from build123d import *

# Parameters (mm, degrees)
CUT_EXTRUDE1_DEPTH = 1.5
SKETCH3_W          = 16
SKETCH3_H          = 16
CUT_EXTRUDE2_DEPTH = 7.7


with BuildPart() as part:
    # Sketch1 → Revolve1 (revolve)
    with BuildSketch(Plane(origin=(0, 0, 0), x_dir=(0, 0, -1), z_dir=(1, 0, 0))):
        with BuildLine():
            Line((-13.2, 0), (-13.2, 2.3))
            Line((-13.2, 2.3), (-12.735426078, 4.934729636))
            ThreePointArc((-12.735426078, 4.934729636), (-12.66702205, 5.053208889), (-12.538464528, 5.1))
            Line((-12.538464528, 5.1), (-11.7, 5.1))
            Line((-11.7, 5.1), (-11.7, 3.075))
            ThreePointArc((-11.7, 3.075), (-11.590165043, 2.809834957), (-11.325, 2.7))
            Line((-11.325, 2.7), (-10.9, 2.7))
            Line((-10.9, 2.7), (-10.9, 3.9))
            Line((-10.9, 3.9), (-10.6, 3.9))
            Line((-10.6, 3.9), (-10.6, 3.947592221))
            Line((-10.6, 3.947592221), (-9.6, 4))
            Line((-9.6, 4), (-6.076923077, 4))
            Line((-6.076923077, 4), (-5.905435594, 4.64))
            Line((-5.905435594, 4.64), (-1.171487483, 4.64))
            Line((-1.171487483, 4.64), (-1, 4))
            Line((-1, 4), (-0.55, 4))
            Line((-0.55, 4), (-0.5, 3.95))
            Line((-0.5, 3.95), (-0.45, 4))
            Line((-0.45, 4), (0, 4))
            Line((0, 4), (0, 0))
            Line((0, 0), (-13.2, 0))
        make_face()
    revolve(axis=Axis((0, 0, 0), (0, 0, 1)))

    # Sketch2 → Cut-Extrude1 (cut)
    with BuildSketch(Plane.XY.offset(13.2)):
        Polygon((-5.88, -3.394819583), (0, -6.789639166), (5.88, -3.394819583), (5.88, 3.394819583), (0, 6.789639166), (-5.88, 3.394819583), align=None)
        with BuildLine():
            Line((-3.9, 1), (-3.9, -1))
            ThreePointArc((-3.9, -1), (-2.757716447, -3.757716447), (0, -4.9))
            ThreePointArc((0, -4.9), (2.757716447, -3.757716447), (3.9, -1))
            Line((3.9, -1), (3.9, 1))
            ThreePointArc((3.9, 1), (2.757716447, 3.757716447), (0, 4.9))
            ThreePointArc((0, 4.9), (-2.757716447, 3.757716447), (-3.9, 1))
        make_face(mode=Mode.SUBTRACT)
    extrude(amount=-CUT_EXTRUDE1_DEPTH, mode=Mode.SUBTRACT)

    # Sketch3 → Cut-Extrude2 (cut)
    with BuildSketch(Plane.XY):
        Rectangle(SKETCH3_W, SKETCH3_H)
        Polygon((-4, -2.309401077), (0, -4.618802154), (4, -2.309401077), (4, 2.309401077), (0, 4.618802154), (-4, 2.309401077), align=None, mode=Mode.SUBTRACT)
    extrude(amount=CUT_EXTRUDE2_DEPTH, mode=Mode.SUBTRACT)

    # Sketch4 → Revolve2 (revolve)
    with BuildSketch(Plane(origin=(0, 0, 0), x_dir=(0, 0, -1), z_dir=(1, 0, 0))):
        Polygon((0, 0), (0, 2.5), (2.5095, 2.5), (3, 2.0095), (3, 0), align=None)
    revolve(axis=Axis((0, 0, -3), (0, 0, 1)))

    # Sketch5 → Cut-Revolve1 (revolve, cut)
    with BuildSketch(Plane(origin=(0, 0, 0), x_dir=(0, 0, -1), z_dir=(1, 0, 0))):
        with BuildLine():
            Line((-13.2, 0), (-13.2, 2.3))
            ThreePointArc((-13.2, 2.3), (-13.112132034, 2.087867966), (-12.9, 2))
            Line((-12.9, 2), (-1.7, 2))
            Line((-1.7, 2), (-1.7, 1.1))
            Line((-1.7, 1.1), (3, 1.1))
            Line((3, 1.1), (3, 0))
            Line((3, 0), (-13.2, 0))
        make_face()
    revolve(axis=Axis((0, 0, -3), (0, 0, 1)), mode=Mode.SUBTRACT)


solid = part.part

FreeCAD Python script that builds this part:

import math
import FreeCAD as App
import Part
import Sketcher
Q = App.Units.Quantity


def add_polygon(sketch, points):
    """Adds a closed chain of lines whose ends are joined by coincident constraints."""
    first, n = sketch.GeometryCount, len(points)
    for a, b in zip(points, points[1:] + points[:1]):
        sketch.addGeometry(Part.LineSegment(App.Vector(*a, 0), App.Vector(*b, 0)), False)
    for i in range(n):
        sketch.addConstraint(Sketcher.Constraint("Coincident", first + i, 2, first + (i + 1) % n, 1))

doc = App.newDocument("Part")
body = doc.addObject("PartDesign::Body", "Body")

# Sketch on YZ plane
sketch1 = body.newObject("Sketcher::SketchObject", "Sketch")
sketch1.AttachmentSupport = (doc.getObject("YZ_Plane"), [""])
sketch1.MapMode = "FlatFace"
sketch1.addGeometry(Part.LineSegment(App.Vector(2.3, 13.2, 0), App.Vector(0, 13.2, 0)), False)
sketch1.addGeometry(Part.LineSegment(App.Vector(0, 13.2, 0), App.Vector(0, 0, 0)), False)
sketch1.addGeometry(Part.LineSegment(App.Vector(0, 0, 0), App.Vector(4, 0, 0)), False)
sketch1.addGeometry(Part.LineSegment(App.Vector(4, 0, 0), App.Vector(4, 0.45, 0)), False)
sketch1.addGeometry(Part.LineSegment(App.Vector(4, 0.45, 0), App.Vector(3.95, 0.5, 0)), False)
sketch1.addGeometry(Part.LineSegment(App.Vector(3.95, 0.5, 0), App.Vector(4, 0.55, 0)), False)
sketch1.addGeometry(Part.LineSegment(App.Vector(4, 0.55, 0), App.Vector(4, 1, 0)), False)
sketch1.addGeometry(Part.LineSegment(App.Vector(4, 1, 0), App.Vector(4.64, 1.171, 0)), False)
sketch1.addGeometry(Part.LineSegment(App.Vector(4.64, 1.171, 0), App.Vector(4.64, 5.905, 0)), False)
sketch1.addGeometry(Part.LineSegment(App.Vector(4.64, 5.905, 0), App.Vector(4, 6.077, 0)), False)
sketch1.addGeometry(Part.LineSegment(App.Vector(4, 6.077, 0), App.Vector(4, 9.6, 0)), False)
sketch1.addGeometry(Part.LineSegment(App.Vector(4, 9.6, 0), App.Vector(3.948, 10.6, 0)), False)
sketch1.addGeometry(Part.LineSegment(App.Vector(3.948, 10.6, 0), App.Vector(3.9, 10.6, 0)), False)
sketch1.addGeometry(Part.LineSegment(App.Vector(3.9, 10.6, 0), App.Vector(3.9, 10.9, 0)), False)
sketch1.addGeometry(Part.LineSegment(App.Vector(3.9, 10.9, 0), App.Vector(2.7, 10.9, 0)), False)
sketch1.addGeometry(Part.LineSegment(App.Vector(2.7, 10.9, 0), App.Vector(2.7, 11.325, 0)), False)
sketch1.addGeometry(Part.ArcOfCircle(Part.Circle(App.Vector(3.075, 11.325, 0), App.Vector(0, 0, 1), 0.375), math.radians(90), math.radians(180)), False)
sketch1.addGeometry(Part.LineSegment(App.Vector(3.075, 11.7, 0), App.Vector(5.1, 11.7, 0)), False)
sketch1.addGeometry(Part.LineSegment(App.Vector(5.1, 11.7, 0), App.Vector(5.1, 12.538, 0)), False)
sketch1.addGeometry(Part.ArcOfCircle(Part.Circle(App.Vector(4.9, 12.538, 0), App.Vector(0, 0, 1), 0.2), math.radians(0), math.radians(80)), False)
sketch1.addGeometry(Part.LineSegment(App.Vector(4.935, 12.735, 0), App.Vector(2.3, 13.2, 0)), False)
sketch1.addConstraint(Sketcher.Constraint("Coincident", 0, 2, 1, 1))
sketch1.addConstraint(Sketcher.Constraint("Coincident", 1, 2, 2, 1))
sketch1.addConstraint(Sketcher.Constraint("Coincident", 2, 2, 3, 1))
sketch1.addConstraint(Sketcher.Constraint("Coincident", 3, 2, 4, 1))
sketch1.addConstraint(Sketcher.Constraint("Coincident", 4, 2, 5, 1))
sketch1.addConstraint(Sketcher.Constraint("Coincident", 5, 2, 6, 1))
sketch1.addConstraint(Sketcher.Constraint("Coincident", 6, 2, 7, 1))
sketch1.addConstraint(Sketcher.Constraint("Coincident", 7, 2, 8, 1))
sketch1.addConstraint(Sketcher.Constraint("Coincident", 8, 2, 9, 1))
sketch1.addConstraint(Sketcher.Constraint("Coincident", 9, 2, 10, 1))
sketch1.addConstraint(Sketcher.Constraint("Coincident", 10, 2, 11, 1))
sketch1.addConstraint(Sketcher.Constraint("Coincident", 11, 2, 12, 1))
sketch1.addConstraint(Sketcher.Constraint("Coincident", 12, 2, 13, 1))
sketch1.addConstraint(Sketcher.Constraint("Coincident", 13, 2, 14, 1))
sketch1.addConstraint(Sketcher.Constraint("Coincident", 14, 2, 15, 1))
sketch1.addConstraint(Sketcher.Constraint("Tangent", 15, 2, 16, 2))
sketch1.addConstraint(Sketcher.Constraint("Tangent", 16, 1, 17, 1))
sketch1.addConstraint(Sketcher.Constraint("Coincident", 17, 2, 18, 1))
sketch1.addConstraint(Sketcher.Constraint("Tangent", 18, 2, 19, 1))
sketch1.addConstraint(Sketcher.Constraint("Tangent", 19, 2, 20, 1))
sketch1.addConstraint(Sketcher.Constraint("Coincident", 20, 2, 0, 1))
sketch1.addConstraint(Sketcher.Constraint("Horizontal", 0))
sketch1.addConstraint(Sketcher.Constraint("Vertical", 1))
sketch1.addConstraint(Sketcher.Constraint("Horizontal", 2))
sketch1.addConstraint(Sketcher.Constraint("Vertical", 3))
sketch1.addConstraint(Sketcher.Constraint("Vertical", 6))
sketch1.addConstraint(Sketcher.Constraint("Vertical", 8))
sketch1.addConstraint(Sketcher.Constraint("Vertical", 10))
sketch1.addConstraint(Sketcher.Constraint("Horizontal", 12))
sketch1.addConstraint(Sketcher.Constraint("Vertical", 13))
sketch1.addConstraint(Sketcher.Constraint("Horizontal", 14))
sketch1.addConstraint(Sketcher.Constraint("Vertical", 15))
sketch1.addConstraint(Sketcher.Constraint("Horizontal", 17))
sketch1.addConstraint(Sketcher.Constraint("Vertical", 18))
sketch1.addConstraint(Sketcher.Constraint("Coincident", 1, 2, -1, 1))
sketch1.addConstraint(Sketcher.Constraint("Perpendicular", 4, 5))
sketch1.addConstraint(Sketcher.Constraint("Vertical", 3, 2, 5, 2))
sketch1.addConstraint(Sketcher.Constraint("Vertical", 6, 2, 9, 2))
sketch1.addConstraint(Sketcher.Constraint("Equal", 3, 6))
sketch1.addConstraint(Sketcher.Constraint("Equal", 4, 5))
sketch1.addConstraint(Sketcher.Constraint("Equal", 7, 9))
sketch1.addConstraint(Sketcher.Constraint("Radius", 19, Q("0.2 mm")))
sketch1.addConstraint(Sketcher.Constraint("DistanceX", 2, 1, 2, 2, Q("4 mm")))
sketch1.addConstraint(Sketcher.Constraint("Angle", 7, Q("15 deg")))
sketch1.addConstraint(Sketcher.Constraint("Angle", 11, Q("93 deg")))
sketch1.addConstraint(Sketcher.Constraint("Angle", 20, Q("170 deg")))
sketch1.addConstraint(Sketcher.Constraint("DistanceX", 0, 2, 0, 1, Q("2.3 mm")))
sketch1.addConstraint(Sketcher.Constraint("DistanceX", 14, 2, 14, 1, Q("1.2 mm")))
sketch1.addConstraint(Sketcher.Constraint("DistanceY", 1, 2, 1, 1, Q("13.2 mm")))
sketch1.addConstraint(Sketcher.Constraint("DistanceY", 13, 1, 13, 2, Q("0.3 mm")))
sketch1.addConstraint(Sketcher.Constraint("DistanceY", -1, 1, 6, 2, Q("1 mm")))
sketch1.addConstraint(Sketcher.Constraint("Radius", 16, Q("0.375 mm")))
sketch1.addConstraint(Sketcher.Constraint("DistanceY", 10, 2, 11, 2, Q("1 mm")))
sketch1.addConstraint(Sketcher.Constraint("DistanceX", 12, 2, 19, 3, Q("1 mm")))
sketch1.addConstraint(Sketcher.Constraint("DistanceY", 3, 1, 3, 2, Q("0.45 mm")))
sketch1.addConstraint(Sketcher.Constraint("DistanceX", -1, 1, 19, 3, Q("4.9 mm")))
sketch1.addConstraint(Sketcher.Constraint("DistanceY", -1, 1, 10, 2, Q("9.6 mm")))
sketch1.addConstraint(Sketcher.Constraint("DistanceY", -1, 1, 16, 1, Q("11.7 mm")))
sketch1.addConstraint(Sketcher.Constraint("DistanceX", -1, 1, 7, 2, Q("4.64 mm")))
sketch1.addConstraint(Sketcher.Constraint("DistanceY", 8, 1, 8, 2, Q("4.733948 mm")))
revolution = body.newObject("PartDesign::Revolution", "Revolution")
revolution.Profile = sketch1
revolution.ReferenceAxis = (sketch1, ["V_Axis"])
revolution.Angle = 360

# Sketch on XY plane
sketch2 = body.newObject("Sketcher::SketchObject", "Sketch001")
sketch2.AttachmentSupport = (doc.getObject("XY_Plane"), [""])
sketch2.MapMode = "FlatFace"
sketch2.AttachmentOffset = App.Placement(App.Vector(0, 0, 13.2), App.Rotation())
add_polygon(sketch2, [(-5.9, -3.4), (0, -6.8), (5.9, -3.4), (5.9, 3.4), (0, 6.8), (-5.9, 3.4)])  # lines 0-5
sketch2.addGeometry(Part.LineSegment(App.Vector(-3.9, -1, 0), App.Vector(-3.9, 1, 0)), False)  # 6
sketch2.addGeometry(Part.ArcOfCircle(Part.Circle(App.Vector(0, 1, 0), App.Vector(0, 0, 1), 3.9), math.radians(90), math.radians(180)), False)  # 7
sketch2.addGeometry(Part.ArcOfCircle(Part.Circle(App.Vector(0, 1, 0), App.Vector(0, 0, 1), 3.9), math.radians(0), math.radians(90)), False)  # 8
sketch2.addGeometry(Part.LineSegment(App.Vector(3.9, 1, 0), App.Vector(3.9, -1, 0)), False)  # 9
sketch2.addGeometry(Part.ArcOfCircle(Part.Circle(App.Vector(0, -1, 0), App.Vector(0, 0, 1), 3.9), math.radians(-90), math.radians(0)), False)  # 10
sketch2.addGeometry(Part.ArcOfCircle(Part.Circle(App.Vector(0, -1, 0), App.Vector(0, 0, 1), 3.9), math.radians(180), math.radians(270)), False)  # 11
sketch2.addConstraint(Sketcher.Constraint("Tangent", 6, 2, 7, 2))
sketch2.addConstraint(Sketcher.Constraint("Tangent", 7, 1, 8, 2))
sketch2.addConstraint(Sketcher.Constraint("Tangent", 8, 1, 9, 1))
sketch2.addConstraint(Sketcher.Constraint("Tangent", 9, 2, 10, 2))
sketch2.addConstraint(Sketcher.Constraint("Tangent", 10, 1, 11, 2))
sketch2.addConstraint(Sketcher.Constraint("Tangent", 11, 1, 6, 1))
sketch2.addConstraint(Sketcher.Constraint("Vertical", 2))
sketch2.addConstraint(Sketcher.Constraint("Vertical", 5))
sketch2.addConstraint(Sketcher.Constraint("Vertical", 6))
sketch2.addConstraint(Sketcher.Constraint("Vertical", 9))
sketch2.addConstraint(Sketcher.Constraint("Equal", 7, 8))
sketch2.addConstraint(Sketcher.Constraint("Equal", 8, 10))
sketch2.addConstraint(Sketcher.Constraint("Symmetric", 7, 3, 10, 3, -1, 1))
sketch2.addConstraint(Sketcher.Constraint("Symmetric", 0, 2, 3, 2, -1, 1))
sketch2.addConstraint(Sketcher.Constraint("Symmetric", 1, 2, 4, 2, -1, 1))
sketch2.addConstraint(Sketcher.Constraint("PointOnObject", 0, 2, -2))
sketch2.addConstraint(Sketcher.Constraint("PointOnObject", 7, 1, -2))
sketch2.addConstraint(Sketcher.Constraint("PointOnObject", 10, 1, -2))
sketch2.addConstraint(Sketcher.Constraint("Parallel", 0, 3))
sketch2.addConstraint(Sketcher.Constraint("Horizontal", 2, 2, 4, 2))
sketch2.addConstraint(Sketcher.Constraint("Radius", 7, Q("3.9 mm")))
sketch2.addConstraint(Sketcher.Constraint("DistanceY", 6, 1, 6, 2, Q("2 mm")))
sketch2.addConstraint(Sketcher.Constraint("Angle", 0, Q("-30 deg")))
sketch2.addConstraint(Sketcher.Constraint("DistanceX", -1, 1, 1, 2, Q("5.88 mm")))
sketch2.addConstraint(Sketcher.Constraint("DistanceY", 2, 1, 2, 2, Q("6.789639 mm")))
pocket1 = body.newObject("PartDesign::Pocket", "Pocket")
pocket1.Profile = sketch2
pocket1.Length = 1.5

# Sketch on XY plane
sketch3 = body.newObject("Sketcher::SketchObject", "Sketch002")
sketch3.AttachmentSupport = (doc.getObject("XY_Plane"), [""])
sketch3.MapMode = "FlatFace"
add_polygon(sketch3, [(-8, 8), (-8, -8), (8, -8), (8, 8)])  # lines 0-3
add_polygon(sketch3, [(0, -4.6), (-4, -2.3), (-4, 2.3), (0, 4.6), (4, 2.3), (4, -2.3)])  # lines 4-9
sketch3.addConstraint(Sketcher.Constraint("Vertical", 0))
sketch3.addConstraint(Sketcher.Constraint("Horizontal", 1))
sketch3.addConstraint(Sketcher.Constraint("Vertical", 2))
sketch3.addConstraint(Sketcher.Constraint("Horizontal", 3))
sketch3.addConstraint(Sketcher.Constraint("Vertical", 5))
sketch3.addConstraint(Sketcher.Constraint("Vertical", 8))
sketch3.addConstraint(Sketcher.Constraint("Symmetric", 0, 2, 2, 2, -1, 1))
sketch3.addConstraint(Sketcher.Constraint("Symmetric", 4, 2, 7, 2, -1, 1))
sketch3.addConstraint(Sketcher.Constraint("Symmetric", 6, 2, 9, 2, -1, 1))
sketch3.addConstraint(Sketcher.Constraint("PointOnObject", 6, 2, -2))
sketch3.addConstraint(Sketcher.Constraint("Parallel", 6, 9))
sketch3.addConstraint(Sketcher.Constraint("Horizontal", 5, 2, 7, 2))
sketch3.addConstraint(Sketcher.Constraint("Equal", 3, 0))
sketch3.addConstraint(Sketcher.Constraint("DistanceX", 1, 1, 1, 2, Q("16 mm")))
sketch3.addConstraint(Sketcher.Constraint("Angle", 4, Q("150 deg")))
sketch3.addConstraint(Sketcher.Constraint("DistanceX", 4, 2, -1, 1, Q("4 mm")))
sketch3.addConstraint(Sketcher.Constraint("DistanceY", 4, 2, -1, 1, Q("2.309401 mm")))
pocket2 = body.newObject("PartDesign::Pocket", "Pocket001")
pocket2.Profile = sketch3
pocket2.Length = 7.7
pocket2.Reversed = True

# Sketch on YZ plane
sketch4 = body.newObject("Sketcher::SketchObject", "Sketch003")
sketch4.AttachmentSupport = (doc.getObject("YZ_Plane"), [""])
sketch4.MapMode = "FlatFace"
add_polygon(sketch4, [(2.5, 0), (0, 0), (0, -3), (2, -3), (2.5, -2.5)])  # lines 0-4
sketch4.addConstraint(Sketcher.Constraint("Horizontal", 0))
sketch4.addConstraint(Sketcher.Constraint("Vertical", 1))
sketch4.addConstraint(Sketcher.Constraint("Horizontal", 2))
sketch4.addConstraint(Sketcher.Constraint("Vertical", 4))
sketch4.addConstraint(Sketcher.Constraint("Coincident", 0, 2, -1, 1))
sketch4.addConstraint(Sketcher.Constraint("DistanceY", 1, 2, 1, 1, Q("3 mm")))
sketch4.addConstraint(Sketcher.Constraint("Angle", 3, Q("45 deg")))
sketch4.addConstraint(Sketcher.Constraint("DistanceX", 0, 2, 0, 1, Q("2.5 mm")))
sketch4.addConstraint(Sketcher.Constraint("DistanceX", 2, 1, 2, 2, Q("2.0095 mm")))
revolution2 = body.newObject("PartDesign::Revolution", "Revolution001")
revolution2.Profile = sketch4
revolution2.ReferenceAxis = (sketch4, ["V_Axis"])
revolution2.Angle = 360

# Sketch on YZ plane
sketch5 = body.newObject("Sketcher::SketchObject", "Sketch004")
sketch5.AttachmentSupport = (doc.getObject("YZ_Plane"), [""])
sketch5.MapMode = "FlatFace"
sketch5.addGeometry(Part.LineSegment(App.Vector(2.3, 13.2, 0), App.Vector(0, 13.2, 0)), False)
sketch5.addGeometry(Part.LineSegment(App.Vector(0, 13.2, 0), App.Vector(0, -3, 0)), False)
sketch5.addGeometry(Part.LineSegment(App.Vector(0, -3, 0), App.Vector(1.1, -3, 0)), False)
sketch5.addGeometry(Part.LineSegment(App.Vector(1.1, -3, 0), App.Vector(1.1, 1.7, 0)), False)
sketch5.addGeometry(Part.LineSegment(App.Vector(1.1, 1.7, 0), App.Vector(2, 1.7, 0)), False)
sketch5.addGeometry(Part.LineSegment(App.Vector(2, 1.7, 0), App.Vector(2, 12.9, 0)), False)
sketch5.addGeometry(Part.ArcOfCircle(Part.Circle(App.Vector(2.3, 12.9, 0), App.Vector(0, 0, 1), 0.3), math.radians(90), math.radians(180)), False)
sketch5.addConstraint(Sketcher.Constraint("Coincident", 0, 2, 1, 1))
sketch5.addConstraint(Sketcher.Constraint("Coincident", 1, 2, 2, 1))
sketch5.addConstraint(Sketcher.Constraint("Coincident", 2, 2, 3, 1))
sketch5.addConstraint(Sketcher.Constraint("Coincident", 3, 2, 4, 1))
sketch5.addConstraint(Sketcher.Constraint("Coincident", 4, 2, 5, 1))
sketch5.addConstraint(Sketcher.Constraint("Tangent", 5, 2, 6, 2))
sketch5.addConstraint(Sketcher.Constraint("Tangent", 6, 1, 0, 1))
sketch5.addConstraint(Sketcher.Constraint("Horizontal", 0))
sketch5.addConstraint(Sketcher.Constraint("Vertical", 1))
sketch5.addConstraint(Sketcher.Constraint("Horizontal", 2))
sketch5.addConstraint(Sketcher.Constraint("Vertical", 3))
sketch5.addConstraint(Sketcher.Constraint("Horizontal", 4))
sketch5.addConstraint(Sketcher.Constraint("Vertical", 5))
sketch5.addConstraint(Sketcher.Constraint("PointOnObject", 0, 2, -2))
sketch5.addConstraint(Sketcher.Constraint("Radius", 6, Q("0.3 mm")))
sketch5.addConstraint(Sketcher.Constraint("DistanceX", 0, 2, 0, 1, Q("2.3 mm")))
sketch5.addConstraint(Sketcher.Constraint("DistanceX", 2, 1, 2, 2, Q("1.1 mm")))
sketch5.addConstraint(Sketcher.Constraint("DistanceY", 1, 2, 1, 1, Q("16.2 mm")))
sketch5.addConstraint(Sketcher.Constraint("DistanceY", 3, 1, 3, 2, Q("4.7 mm")))
sketch5.addConstraint(Sketcher.Constraint("DistanceY", 1, 2, -1, 1, Q("3 mm")))
groove = body.newObject("PartDesign::Groove", "Groove")
groove.Profile = sketch5
groove.ReferenceAxis = (sketch5, ["V_Axis"])
groove.Angle = 360

doc.recompute()
